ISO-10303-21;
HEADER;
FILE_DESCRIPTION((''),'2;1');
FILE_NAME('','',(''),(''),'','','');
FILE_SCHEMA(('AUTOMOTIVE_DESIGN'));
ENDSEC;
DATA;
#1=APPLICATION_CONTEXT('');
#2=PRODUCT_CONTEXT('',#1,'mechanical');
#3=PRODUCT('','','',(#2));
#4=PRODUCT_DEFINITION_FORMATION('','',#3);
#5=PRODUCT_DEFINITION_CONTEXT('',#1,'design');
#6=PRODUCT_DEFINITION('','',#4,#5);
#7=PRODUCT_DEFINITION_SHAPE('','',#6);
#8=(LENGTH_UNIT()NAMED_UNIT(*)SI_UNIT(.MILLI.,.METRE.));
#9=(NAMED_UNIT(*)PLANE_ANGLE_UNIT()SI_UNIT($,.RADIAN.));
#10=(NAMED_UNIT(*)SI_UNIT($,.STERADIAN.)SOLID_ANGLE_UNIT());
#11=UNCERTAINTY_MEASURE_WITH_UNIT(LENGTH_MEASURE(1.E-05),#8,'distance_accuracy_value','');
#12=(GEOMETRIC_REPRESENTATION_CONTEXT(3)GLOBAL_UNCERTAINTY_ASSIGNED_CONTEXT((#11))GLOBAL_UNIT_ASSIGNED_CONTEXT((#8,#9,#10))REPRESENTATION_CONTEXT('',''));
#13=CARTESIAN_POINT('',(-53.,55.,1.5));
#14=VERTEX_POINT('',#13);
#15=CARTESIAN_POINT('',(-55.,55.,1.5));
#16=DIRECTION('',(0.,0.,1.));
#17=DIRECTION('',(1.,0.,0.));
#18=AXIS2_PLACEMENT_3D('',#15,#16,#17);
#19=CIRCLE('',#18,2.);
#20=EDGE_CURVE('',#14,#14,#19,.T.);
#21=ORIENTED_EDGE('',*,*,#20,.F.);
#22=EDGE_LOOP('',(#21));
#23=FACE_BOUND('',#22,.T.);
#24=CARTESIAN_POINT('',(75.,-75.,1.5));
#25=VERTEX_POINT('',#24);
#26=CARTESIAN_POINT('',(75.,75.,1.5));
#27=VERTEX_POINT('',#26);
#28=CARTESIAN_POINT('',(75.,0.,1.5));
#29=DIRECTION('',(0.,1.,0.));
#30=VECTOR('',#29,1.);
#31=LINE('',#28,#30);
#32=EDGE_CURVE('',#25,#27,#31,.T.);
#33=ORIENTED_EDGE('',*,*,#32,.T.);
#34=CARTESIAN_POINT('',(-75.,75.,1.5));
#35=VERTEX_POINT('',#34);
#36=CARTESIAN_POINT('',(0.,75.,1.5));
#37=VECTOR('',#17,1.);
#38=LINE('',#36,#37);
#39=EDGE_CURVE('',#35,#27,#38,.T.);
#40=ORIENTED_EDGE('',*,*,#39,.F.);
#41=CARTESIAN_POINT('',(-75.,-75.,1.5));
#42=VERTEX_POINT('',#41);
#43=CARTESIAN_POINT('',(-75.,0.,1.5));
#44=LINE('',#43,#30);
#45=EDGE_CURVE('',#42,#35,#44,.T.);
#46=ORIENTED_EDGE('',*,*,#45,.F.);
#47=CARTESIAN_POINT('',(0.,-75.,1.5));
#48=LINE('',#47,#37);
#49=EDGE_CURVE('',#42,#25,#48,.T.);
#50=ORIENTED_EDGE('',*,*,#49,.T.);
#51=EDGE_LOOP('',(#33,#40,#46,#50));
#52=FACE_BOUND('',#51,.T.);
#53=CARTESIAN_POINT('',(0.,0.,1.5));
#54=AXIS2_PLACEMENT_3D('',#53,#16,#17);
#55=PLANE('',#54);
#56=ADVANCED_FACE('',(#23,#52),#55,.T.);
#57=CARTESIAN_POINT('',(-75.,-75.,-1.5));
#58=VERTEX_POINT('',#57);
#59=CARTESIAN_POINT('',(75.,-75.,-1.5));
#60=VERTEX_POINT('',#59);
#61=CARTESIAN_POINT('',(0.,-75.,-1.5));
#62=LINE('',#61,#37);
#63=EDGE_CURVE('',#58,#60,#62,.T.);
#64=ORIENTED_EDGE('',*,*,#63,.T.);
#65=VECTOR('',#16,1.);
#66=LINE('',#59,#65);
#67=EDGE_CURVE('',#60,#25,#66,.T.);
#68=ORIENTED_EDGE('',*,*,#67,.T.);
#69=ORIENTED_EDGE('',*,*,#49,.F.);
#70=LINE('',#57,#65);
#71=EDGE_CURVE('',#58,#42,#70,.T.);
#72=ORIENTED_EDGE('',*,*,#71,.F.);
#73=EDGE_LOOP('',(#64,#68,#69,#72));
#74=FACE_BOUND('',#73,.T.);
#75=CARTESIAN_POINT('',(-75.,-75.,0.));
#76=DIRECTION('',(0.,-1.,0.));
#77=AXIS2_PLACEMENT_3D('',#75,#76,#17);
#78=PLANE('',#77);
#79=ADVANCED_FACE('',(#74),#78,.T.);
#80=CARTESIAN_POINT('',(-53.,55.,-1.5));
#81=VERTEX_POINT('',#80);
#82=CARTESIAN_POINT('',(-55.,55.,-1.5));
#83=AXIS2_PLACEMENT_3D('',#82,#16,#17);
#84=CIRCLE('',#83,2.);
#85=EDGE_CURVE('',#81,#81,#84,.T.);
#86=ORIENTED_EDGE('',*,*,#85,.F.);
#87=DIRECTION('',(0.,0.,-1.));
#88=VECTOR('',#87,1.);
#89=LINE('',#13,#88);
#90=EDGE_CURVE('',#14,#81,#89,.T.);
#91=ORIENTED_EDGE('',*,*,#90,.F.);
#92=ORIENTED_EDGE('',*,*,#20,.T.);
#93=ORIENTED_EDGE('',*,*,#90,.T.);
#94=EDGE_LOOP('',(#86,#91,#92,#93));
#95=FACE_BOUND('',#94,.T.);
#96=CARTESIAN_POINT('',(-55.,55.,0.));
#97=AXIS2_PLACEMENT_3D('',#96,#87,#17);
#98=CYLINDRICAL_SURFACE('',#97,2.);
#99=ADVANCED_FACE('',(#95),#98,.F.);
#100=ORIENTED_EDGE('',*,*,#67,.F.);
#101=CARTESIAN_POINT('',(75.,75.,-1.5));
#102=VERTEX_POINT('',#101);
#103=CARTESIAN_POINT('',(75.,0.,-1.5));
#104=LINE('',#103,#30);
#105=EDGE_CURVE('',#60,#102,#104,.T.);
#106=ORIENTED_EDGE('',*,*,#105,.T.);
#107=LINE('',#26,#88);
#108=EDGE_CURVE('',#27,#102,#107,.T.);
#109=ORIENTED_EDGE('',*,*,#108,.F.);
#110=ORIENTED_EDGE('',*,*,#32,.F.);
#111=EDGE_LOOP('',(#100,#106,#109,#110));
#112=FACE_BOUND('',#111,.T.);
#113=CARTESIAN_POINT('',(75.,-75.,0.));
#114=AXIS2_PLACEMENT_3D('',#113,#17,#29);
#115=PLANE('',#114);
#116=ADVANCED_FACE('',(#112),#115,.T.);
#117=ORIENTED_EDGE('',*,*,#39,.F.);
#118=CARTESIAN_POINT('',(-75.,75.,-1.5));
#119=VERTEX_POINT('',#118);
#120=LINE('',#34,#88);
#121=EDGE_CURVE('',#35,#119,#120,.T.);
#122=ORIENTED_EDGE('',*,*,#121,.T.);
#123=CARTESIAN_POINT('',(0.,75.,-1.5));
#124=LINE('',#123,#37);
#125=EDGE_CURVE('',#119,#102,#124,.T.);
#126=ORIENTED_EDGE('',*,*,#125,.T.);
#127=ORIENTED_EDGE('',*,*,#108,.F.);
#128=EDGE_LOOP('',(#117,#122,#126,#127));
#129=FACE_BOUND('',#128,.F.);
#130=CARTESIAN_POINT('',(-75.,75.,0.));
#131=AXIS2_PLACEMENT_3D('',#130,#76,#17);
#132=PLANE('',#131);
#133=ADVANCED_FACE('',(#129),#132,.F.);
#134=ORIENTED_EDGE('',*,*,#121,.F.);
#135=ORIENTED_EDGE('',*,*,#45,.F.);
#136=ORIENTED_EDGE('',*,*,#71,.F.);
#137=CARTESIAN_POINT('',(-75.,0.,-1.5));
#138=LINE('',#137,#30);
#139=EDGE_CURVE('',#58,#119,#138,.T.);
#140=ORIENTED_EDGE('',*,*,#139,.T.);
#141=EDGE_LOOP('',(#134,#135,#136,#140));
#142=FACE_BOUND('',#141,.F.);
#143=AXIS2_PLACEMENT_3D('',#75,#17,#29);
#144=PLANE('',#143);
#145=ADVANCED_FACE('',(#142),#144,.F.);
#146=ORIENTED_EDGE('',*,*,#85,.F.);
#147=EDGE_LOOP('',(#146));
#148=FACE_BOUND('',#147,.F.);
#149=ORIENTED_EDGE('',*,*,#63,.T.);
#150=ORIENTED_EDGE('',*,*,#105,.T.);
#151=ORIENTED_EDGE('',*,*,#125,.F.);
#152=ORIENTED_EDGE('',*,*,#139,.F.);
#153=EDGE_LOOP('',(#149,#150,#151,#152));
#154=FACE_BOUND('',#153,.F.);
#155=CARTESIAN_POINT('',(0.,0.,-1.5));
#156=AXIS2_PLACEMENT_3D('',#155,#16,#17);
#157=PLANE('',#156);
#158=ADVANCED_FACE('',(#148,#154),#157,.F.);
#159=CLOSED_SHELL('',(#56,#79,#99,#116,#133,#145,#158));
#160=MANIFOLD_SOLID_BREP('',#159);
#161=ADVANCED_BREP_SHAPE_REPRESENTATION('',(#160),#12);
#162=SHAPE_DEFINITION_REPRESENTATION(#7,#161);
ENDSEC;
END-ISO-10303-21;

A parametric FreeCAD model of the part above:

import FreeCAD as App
import Part
import Sketcher

V = App.Vector
Q = App.Units.Quantity

doc = App.newDocument("Part")
body = doc.addObject("PartDesign::Body", "Body")

# Sketch on XY plane
sketch1 = body.newObject("Sketcher::SketchObject", "Sketch")
sketch1.AttachmentSupport = (doc.getObject("XY_Plane"), [""])
sketch1.MapMode = "FlatFace"
sketch1.addGeometry(Part.LineSegment(V(-75, 75, 0), V(-75, -75, 0)), False)
sketch1.addGeometry(Part.LineSegment(V(-75, -75, 0), V(75, -75, 0)), False)
sketch1.addGeometry(Part.LineSegment(V(75, -75, 0), V(75, 75, 0)), False)
sketch1.addGeometry(Part.LineSegment(V(75, 75, 0), V(-75, 75, 0)), False)
sketch1.addGeometry(Part.Circle(V(-55, 55, 0), V(0, 0, 1), 2), False)
sketch1.addConstraint(Sketcher.Constraint("Coincident", 0, 2, 1, 1))
sketch1.addConstraint(Sketcher.Constraint("Coincident", 1, 2, 2, 1))
sketch1.addConstraint(Sketcher.Constraint("Coincident", 2, 2, 3, 1))
sketch1.addConstraint(Sketcher.Constraint("Coincident", 3, 2, 0, 1))
sketch1.addConstraint(Sketcher.Constraint("Vertical", 0))
sketch1.addConstraint(Sketcher.Constraint("Horizontal", 1))
sketch1.addConstraint(Sketcher.Constraint("Vertical", 2))
sketch1.addConstraint(Sketcher.Constraint("Horizontal", 3))
sketch1.addConstraint(Sketcher.Constraint("Symmetric", 0, 2, 2, 2, -1, 1))
sketch1.addConstraint(Sketcher.Constraint("Equal", 3, 0))
sketch1.addConstraint(Sketcher.Constraint("Diameter", 4, Q("4 mm")))
sketch1.addConstraint(Sketcher.Constraint("DistanceX", 1, 1, 1, 2, Q("150 mm")))
sketch1.addConstraint(Sketcher.Constraint("DistanceX", 4, 3, -1, 1, Q("55 mm")))
sketch1.addConstraint(Sketcher.Constraint("DistanceY", -1, 1, 4, 3, Q("55 mm")))
pad1 = body.newObject("PartDesign::Pad", "Pad")
pad1.Profile = sketch1
pad1.Length = 3
pad1.Midplane = True

doc.recompute()
